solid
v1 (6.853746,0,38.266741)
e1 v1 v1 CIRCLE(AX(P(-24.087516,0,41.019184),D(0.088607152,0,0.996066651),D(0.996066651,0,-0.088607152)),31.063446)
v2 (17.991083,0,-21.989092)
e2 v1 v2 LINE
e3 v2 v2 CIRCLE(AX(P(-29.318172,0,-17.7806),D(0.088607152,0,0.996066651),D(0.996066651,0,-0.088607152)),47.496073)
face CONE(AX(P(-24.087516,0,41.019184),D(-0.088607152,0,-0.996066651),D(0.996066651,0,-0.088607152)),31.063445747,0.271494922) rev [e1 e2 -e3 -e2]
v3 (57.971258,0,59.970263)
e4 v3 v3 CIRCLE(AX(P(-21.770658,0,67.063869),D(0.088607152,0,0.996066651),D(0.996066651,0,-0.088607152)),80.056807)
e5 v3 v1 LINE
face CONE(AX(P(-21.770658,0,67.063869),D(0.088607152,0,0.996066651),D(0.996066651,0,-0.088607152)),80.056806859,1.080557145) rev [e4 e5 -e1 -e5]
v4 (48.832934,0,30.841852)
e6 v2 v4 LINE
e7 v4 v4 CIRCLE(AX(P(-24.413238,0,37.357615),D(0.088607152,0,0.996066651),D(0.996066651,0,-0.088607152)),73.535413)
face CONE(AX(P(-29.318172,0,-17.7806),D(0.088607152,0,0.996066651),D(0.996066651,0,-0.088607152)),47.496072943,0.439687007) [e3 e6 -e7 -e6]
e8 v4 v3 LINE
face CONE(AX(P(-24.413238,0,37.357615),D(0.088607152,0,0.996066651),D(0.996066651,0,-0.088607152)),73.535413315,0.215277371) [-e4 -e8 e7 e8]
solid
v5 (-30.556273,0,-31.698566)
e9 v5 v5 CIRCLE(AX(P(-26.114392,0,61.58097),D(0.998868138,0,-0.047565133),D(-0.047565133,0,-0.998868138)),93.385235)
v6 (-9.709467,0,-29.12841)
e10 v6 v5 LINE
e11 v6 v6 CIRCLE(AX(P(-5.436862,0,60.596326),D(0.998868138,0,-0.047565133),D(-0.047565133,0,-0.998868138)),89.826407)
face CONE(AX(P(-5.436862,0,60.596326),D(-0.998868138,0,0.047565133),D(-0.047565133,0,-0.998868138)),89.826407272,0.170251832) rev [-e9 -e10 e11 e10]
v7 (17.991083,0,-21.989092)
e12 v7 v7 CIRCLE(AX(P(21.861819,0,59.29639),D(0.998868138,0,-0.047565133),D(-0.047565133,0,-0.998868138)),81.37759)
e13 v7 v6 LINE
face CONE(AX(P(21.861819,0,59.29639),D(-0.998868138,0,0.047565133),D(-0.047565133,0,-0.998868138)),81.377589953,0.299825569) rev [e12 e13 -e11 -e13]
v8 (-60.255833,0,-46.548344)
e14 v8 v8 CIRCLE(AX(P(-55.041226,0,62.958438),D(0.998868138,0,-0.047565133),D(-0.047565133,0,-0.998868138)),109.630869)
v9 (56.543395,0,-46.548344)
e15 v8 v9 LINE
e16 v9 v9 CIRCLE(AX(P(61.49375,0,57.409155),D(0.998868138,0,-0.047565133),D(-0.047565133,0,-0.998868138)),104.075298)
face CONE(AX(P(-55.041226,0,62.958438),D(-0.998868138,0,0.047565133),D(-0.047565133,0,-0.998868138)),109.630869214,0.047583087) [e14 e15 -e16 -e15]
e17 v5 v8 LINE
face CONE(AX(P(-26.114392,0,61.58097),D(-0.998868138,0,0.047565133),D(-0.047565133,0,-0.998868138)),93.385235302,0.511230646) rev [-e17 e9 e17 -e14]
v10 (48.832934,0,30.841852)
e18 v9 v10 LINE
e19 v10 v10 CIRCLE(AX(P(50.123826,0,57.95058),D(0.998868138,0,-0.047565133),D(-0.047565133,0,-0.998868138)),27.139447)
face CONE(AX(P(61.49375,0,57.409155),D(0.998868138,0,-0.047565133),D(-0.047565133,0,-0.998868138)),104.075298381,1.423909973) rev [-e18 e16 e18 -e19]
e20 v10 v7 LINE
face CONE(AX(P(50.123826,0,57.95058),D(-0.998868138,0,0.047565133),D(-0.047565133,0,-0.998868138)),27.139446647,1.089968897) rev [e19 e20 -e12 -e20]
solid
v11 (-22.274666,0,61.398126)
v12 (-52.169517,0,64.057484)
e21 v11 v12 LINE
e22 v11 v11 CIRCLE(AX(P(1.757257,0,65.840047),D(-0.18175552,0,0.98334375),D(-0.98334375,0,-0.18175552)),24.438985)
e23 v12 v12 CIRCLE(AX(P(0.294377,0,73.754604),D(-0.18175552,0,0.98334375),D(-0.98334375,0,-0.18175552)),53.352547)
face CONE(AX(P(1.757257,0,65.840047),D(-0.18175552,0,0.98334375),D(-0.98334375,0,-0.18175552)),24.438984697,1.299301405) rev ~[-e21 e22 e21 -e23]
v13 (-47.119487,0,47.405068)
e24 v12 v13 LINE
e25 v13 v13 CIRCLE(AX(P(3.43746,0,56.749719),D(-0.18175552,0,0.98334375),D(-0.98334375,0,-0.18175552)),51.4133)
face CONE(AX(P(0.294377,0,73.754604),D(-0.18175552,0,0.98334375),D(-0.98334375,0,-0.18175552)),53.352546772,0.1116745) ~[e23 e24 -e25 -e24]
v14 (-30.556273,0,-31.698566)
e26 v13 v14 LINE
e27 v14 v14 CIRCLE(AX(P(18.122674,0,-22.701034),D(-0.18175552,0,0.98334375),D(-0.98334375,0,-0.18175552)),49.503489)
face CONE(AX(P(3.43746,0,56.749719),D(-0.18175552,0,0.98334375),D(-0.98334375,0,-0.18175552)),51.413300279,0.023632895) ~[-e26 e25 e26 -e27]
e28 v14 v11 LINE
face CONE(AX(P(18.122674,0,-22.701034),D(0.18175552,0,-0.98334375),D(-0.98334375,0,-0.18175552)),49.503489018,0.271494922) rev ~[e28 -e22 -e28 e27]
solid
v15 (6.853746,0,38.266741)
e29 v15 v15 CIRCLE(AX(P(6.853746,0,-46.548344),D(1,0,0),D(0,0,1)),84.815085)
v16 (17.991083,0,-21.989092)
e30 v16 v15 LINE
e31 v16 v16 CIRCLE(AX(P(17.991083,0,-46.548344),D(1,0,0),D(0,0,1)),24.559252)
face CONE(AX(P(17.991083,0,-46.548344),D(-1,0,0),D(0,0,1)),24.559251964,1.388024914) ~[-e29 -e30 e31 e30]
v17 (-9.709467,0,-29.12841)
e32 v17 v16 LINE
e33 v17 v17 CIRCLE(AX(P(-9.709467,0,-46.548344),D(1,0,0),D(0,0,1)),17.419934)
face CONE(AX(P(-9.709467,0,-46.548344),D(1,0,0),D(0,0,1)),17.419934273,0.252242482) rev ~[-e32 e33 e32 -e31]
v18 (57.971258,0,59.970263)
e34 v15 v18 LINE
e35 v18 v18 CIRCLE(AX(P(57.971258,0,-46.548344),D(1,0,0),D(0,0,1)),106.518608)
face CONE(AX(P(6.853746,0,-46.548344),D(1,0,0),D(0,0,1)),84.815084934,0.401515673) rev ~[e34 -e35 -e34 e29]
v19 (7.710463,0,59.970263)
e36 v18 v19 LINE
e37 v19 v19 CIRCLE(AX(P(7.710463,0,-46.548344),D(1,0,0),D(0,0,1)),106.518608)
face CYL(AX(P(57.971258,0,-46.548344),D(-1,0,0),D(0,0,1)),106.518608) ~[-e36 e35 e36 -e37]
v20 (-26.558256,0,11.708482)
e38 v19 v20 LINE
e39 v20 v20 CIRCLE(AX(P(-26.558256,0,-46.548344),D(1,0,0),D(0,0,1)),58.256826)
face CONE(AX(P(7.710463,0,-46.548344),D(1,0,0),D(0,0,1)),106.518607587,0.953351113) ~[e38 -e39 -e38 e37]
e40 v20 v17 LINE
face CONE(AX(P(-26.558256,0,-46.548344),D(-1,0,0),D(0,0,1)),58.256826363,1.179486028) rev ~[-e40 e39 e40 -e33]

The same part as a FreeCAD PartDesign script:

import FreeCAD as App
import Part
import Sketcher
from FreeCAD import Vector

doc = App.newDocument("Part")
body = doc.addObject("PartDesign::Body", "Body")

sketch1 = doc.addObject("Sketcher::SketchObject", "Sketch")
body.addObject(sketch1)
sketch1.AttachmentSupport = (doc.XZ_Plane, [""])
sketch1.MapMode = "FlatFace"
sketch1.addGeometry(Part.LineSegment(Vector(-52, 64, 0), Vector(-47, 47, 0)), False)
sketch1.addGeometry(Part.LineSegment(Vector(-47, 47, 0), Vector(-31, -32, 0)), False)
sketch1.addGeometry(Part.LineSegment(Vector(-31, -32, 0), Vector(-22, 61, 0)), False)
sketch1.addGeometry(Part.LineSegment(Vector(-22, 61, 0), Vector(-52, 64, 0)), False)
sketch1.addGeometry(Part.LineSegment(Vector(18, -23, 0), Vector(0, 74, 0)), True)
sketch1.addConstraint(Sketcher.Constraint("Coincident", 0, 2, 1, 1))
sketch1.addConstraint(Sketcher.Constraint("Coincident", 1, 2, 2, 1))
sketch1.addConstraint(Sketcher.Constraint("Coincident", 2, 2, 3, 1))
sketch1.addConstraint(Sketcher.Constraint("Coincident", 3, 2, 0, 1))
sketch1.addConstraint(Sketcher.Constraint("Perpendicular", 2, 3))
sketch1.addConstraint(Sketcher.Constraint("DistanceY", 4, 1, 0, 2, 70.106101))
sketch1.addConstraint(Sketcher.Constraint("Distance", 2, 93.46432))
sketch1.addConstraint(Sketcher.Constraint("Distance", 4, 98.08944))
sketch1.addConstraint(Sketcher.Constraint("DistanceX", 0, 2, 2, 2, 24.844822))
sketch1.addConstraint(Sketcher.Constraint("DistanceY", 0, 2, 2, 2, 13.993058))
sketch1.addConstraint(Sketcher.Constraint("DistanceX", 3, 2, 0, 2, 5.05003))
sketch1.addConstraint(Sketcher.Constraint("DistanceY", 1, 2, 3, 2, 95.75605))
sketch1.addConstraint(Sketcher.Constraint("DistanceX", 2, 2, 4, 1, 40.397339))
sketch1.addConstraint(Sketcher.Constraint("DistanceY", 3, 2, 4, 2, 9.69712))
sketch1.addConstraint(Sketcher.Constraint("DistanceX", 0, 2, -1, 1, 47.119487))
sketch1.addConstraint(Sketcher.Constraint("DistanceY", -1, 1, 0, 2, 47.405068))
revolution = doc.addObject("PartDesign::Revolution", "Revolution")
body.addObject(revolution)
revolution.Profile = sketch1
revolution.ReferenceAxis = (sketch1, ["Axis0"])
revolution.Angle = 360
body2 = doc.addObject("PartDesign::Body", "Body001")

sketch2 = doc.addObject("Sketcher::SketchObject", "Sketch001")
body2.addObject(sketch2)
sketch2.AttachmentSupport = (doc.getObject("XZ_Plane001"), [""])
sketch2.MapMode = "FlatFace"
sketch2.addGeometry(Part.LineSegment(Vector(-27, 12, 0), Vector(-10, -29, 0)), False)
sketch2.addGeometry(Part.LineSegment(Vector(-10, -29, 0), Vector(18, -22, 0)), False)
sketch2.addGeometry(Part.LineSegment(Vector(18, -22, 0), Vector(7, 38, 0)), False)
sketch2.addGeometry(Part.LineSegment(Vector(7, 38, 0), Vector(58, 60, 0)), False)
sketch2.addGeometry(Part.LineSegment(Vector(58, 60, 0), Vector(8, 60, 0)), False)
sketch2.addGeometry(Part.LineSegment(Vector(8, 60, 0), Vector(-27, 12, 0)), False)
sketch2.addGeometry(Part.LineSegment(Vector(-27, -47, 0), Vector(58, -47, 0)), True)
sketch2.addConstraint(Sketcher.Constraint("Coincident", 0, 2, 1, 1))
sketch2.addConstraint(Sketcher.Constraint("Coincident", 1, 2, 2, 1))
sketch2.addConstraint(Sketcher.Constraint("Coincident", 2, 2, 3, 1))
sketch2.addConstraint(Sketcher.Constraint("Coincident", 3, 2, 4, 1))
sketch2.addConstraint(Sketcher.Constraint("Coincident", 4, 2, 5, 1))
sketch2.addConstraint(Sketcher.Constraint("Coincident", 5, 2, 0, 1))
sketch2.addConstraint(Sketcher.Constraint("Horizontal", 4))
sketch2.addConstraint(Sketcher.Constraint("Horizontal", 6))
sketch2.addConstraint(Sketcher.Constraint("Vertical", 5, 2, 6, 1))
sketch2.addConstraint(Sketcher.Constraint("Vertical", 3, 2, 6, 2))
sketch2.addConstraint(Sketcher.Constraint("Distance", 2, 61.276469))
sketch2.addConstraint(Sketcher.Constraint("Distance", 3, 55.53416))
sketch2.addConstraint(Sketcher.Constraint("DistanceX", 4, 2, 4, 1, 50.260794))
sketch2.addConstraint(Sketcher.Constraint("DistanceX", 6, 1, 6, 2, 84.529513))
sketch2.addConstraint(Sketcher.Constraint("DistanceY", 0, 2, -1, 1, 29.12841))
sketch2.addConstraint(Sketcher.Constraint("DistanceY", -1, 1, 2, 2, 38.266741))
sketch2.addConstraint(Sketcher.Constraint("DistanceX", 0, 2, 1, 2, 27.70055))
sketch2.addConstraint(Sketcher.Constraint("DistanceX", 2, 2, 3, 2, 51.117511))
sketch2.addConstraint(Sketcher.Constraint("DistanceX", 4, 2, 1, 2, 10.280619))
sketch2.addConstraint(Sketcher.Constraint("DistanceY", 5, 2, 2, 2, 26.558259))
sketch2.addConstraint(Sketcher.Constraint("DistanceY", 6, 1, 1, 2, 24.559252))
sketch2.addConstraint(Sketcher.Constraint("DistanceX", 0, 2, -1, 1, 9.709467))
revolution2 = doc.addObject("PartDesign::Revolution", "Revolution001")
body2.addObject(revolution2)
revolution2.Profile = sketch2
revolution2.ReferenceAxis = (sketch2, ["Axis0"])
revolution2.Angle = 360
body3 = doc.addObject("PartDesign::Body", "Body002")

sketch3 = doc.addObject("Sketcher::SketchObject", "Sketch002")
body3.addObject(sketch3)
sketch3.AttachmentSupport = (doc.getObject("XZ_Plane002"), [""])
sketch3.MapMode = "FlatFace"
sketch3.addGeometry(Part.LineSegment(Vector(-31, -32, 0), Vector(-60, -47, 0)), False)
sketch3.addGeometry(Part.LineSegment(Vector(-60, -47, 0), Vector(57, -47, 0)), False)
sketch3.addGeometry(Part.LineSegment(Vector(57, -47, 0), Vector(49, 31, 0)), False)
sketch3.addGeometry(Part.LineSegment(Vector(49, 31, 0), Vector(18, -22, 0)), False)
sketch3.addGeometry(Part.LineSegment(Vector(18, -22, 0), Vector(-10, -29, 0)), False)
sketch3.addGeometry(Part.LineSegment(Vector(-10, -29, 0), Vector(-31, -32, 0)), False)
sketch3.addGeometry(Part.LineSegment(Vector(-55, 63, 0), Vector(61, 57, 0)), True)
sketch3.addConstraint(Sketcher.Constraint("Coincident", 0, 2, 1, 1))
sketch3.addConstraint(Sketcher.Constraint("Coincident", 1, 2, 2, 1))
sketch3.addConstraint(Sketcher.Constraint("Coincident", 2, 2, 3, 1))
sketch3.addConstraint(Sketcher.Constraint("Coincident", 3, 2, 4, 1))
sketch3.addConstraint(Sketcher.Constraint("Coincident", 4, 2, 5, 1))
sketch3.addConstraint(Sketcher.Constraint("Coincident", 5, 2, 0, 1))
sketch3.addConstraint(Sketcher.Constraint("Horizontal", 1))
sketch3.addConstraint(Sketcher.Constraint("DistanceX", 4, 2, 2, 2, 58.542402))
sketch3.addConstraint(Sketcher.Constraint("DistanceY", 1, 2, 6, 2, 103.9575))
sketch3.addConstraint(Sketcher.Constraint("DistanceX", 1, 1, 1, 2, 116.799228))
sketch3.addConstraint(Sketcher.Constraint("DistanceY", -1, 1, 2, 2, 30.841852))
sketch3.addConstraint(Sketcher.Constraint("DistanceY", 4, 2, -1, 1, 29.12841))
sketch3.addConstraint(Sketcher.Constraint("DistanceY", -1, 1, 6, 1, 62.958438))
sketch3.addConstraint(Sketcher.Constraint("DistanceX", -1, 1, 6, 2, 61.49375))
sketch3.addConstraint(Sketcher.Constraint("DistanceX", 2, 2, 1, 2, 7.710461))
sketch3.addConstraint(Sketcher.Constraint("DistanceY", 1, 2, 3, 2, 24.559252))
sketch3.addConstraint(Sketcher.Constraint("DistanceX", 3, 2, 2, 2, 30.841852))
sketch3.addConstraint(Sketcher.Constraint("DistanceX", 0, 2, 5, 2, 29.69956))
sketch3.addConstraint(Sketcher.Constraint("DistanceY", 0, 2, 5, 2, 14.849778))
sketch3.addConstraint(Sketcher.Constraint("DistanceX", 6, 1, 4, 2, 45.331759))
sketch3.addConstraint(Sketcher.Constraint("DistanceY", 3, 2, 6, 1, 84.94753))
sketch3.addConstraint(Sketcher.Constraint("Distance", 6, 116.667027))
revolution3 = doc.addObject("PartDesign::Revolution", "Revolution002")
body3.addObject(revolution3)
revolution3.Profile = sketch3
revolution3.ReferenceAxis = (sketch3, ["Axis0"])
revolution3.Angle = 360
body4 = doc.addObject("PartDesign::Body", "Body003")

sketch4 = doc.addObject("Sketcher::SketchObject", "Sketch003")
body4.addObject(sketch4)
sketch4.AttachmentSupport = (doc.getObject("XZ_Plane003"), [""])
sketch4.MapMode = "FlatFace"
sketch4.addGeometry(Part.LineSegment(Vector(18, -22, 0), Vector(49, 31, 0)), False)
sketch4.addGeometry(Part.LineSegment(Vector(49, 31, 0), Vector(58, 60, 0)), False)
sketch4.addGeometry(Part.LineSegment(Vector(58, 60, 0), Vector(7, 38, 0)), False)
sketch4.addGeometry(Part.LineSegment(Vector(7, 38, 0), Vector(18, -22, 0)), False)
sketch4.addGeometry(Part.LineSegment(Vector(-29, -18, 0), Vector(-22, 67, 0)), True)
sketch4.addConstraint(Sketcher.Constraint("Coincident", 0, 2, 1, 1))
sketch4.addConstraint(Sketcher.Constraint("Coincident", 1, 2, 2, 1))
sketch4.addConstraint(Sketcher.Constraint("Coincident", 2, 2, 3, 1))
sketch4.addConstraint(Sketcher.Constraint("Coincident", 3, 2, 0, 1))
sketch4.addConstraint(Sketcher.Constraint("DistanceY", 4, 1, -1, 1, 17.7806))
sketch4.addConstraint(Sketcher.Constraint("Distance", 1, 30.528238))
sketch4.addConstraint(Sketcher.Constraint("Distance", 2, 55.53416))
sketch4.addConstraint(Sketcher.Constraint("Distance", 3, 61.276469))
sketch4.addConstraint(Sketcher.Constraint("Distance", 4, 85.17951))
sketch4.addConstraint(Sketcher.Constraint("DistanceY", -1, 1, 0, 2, 30.841852))
sketch4.addConstraint(Sketcher.Constraint("DistanceY", -1, 1, 2, 2, 38.266741))
sketch4.addConstraint(Sketcher.Constraint("DistanceX", 4, 1, -1, 1, 29.318172))
sketch4.addConstraint(Sketcher.Constraint("DistanceY", -1, 1, 4, 2, 67.063869))
sketch4.addConstraint(Sketcher.Constraint("DistanceY", 0, 2, 1, 2, 29.128412))
sketch4.addConstraint(Sketcher.Constraint("DistanceX", 3, 2, 0, 2, 30.841852))
sketch4.addConstraint(Sketcher.Constraint("DistanceX", 4, 1, 1, 2, 87.289429))
revolution4 = doc.addObject("PartDesign::Revolution", "Revolution003")
body4.addObject(revolution4)
revolution4.Profile = sketch4
revolution4.ReferenceAxis = (sketch4, ["Axis0"])
revolution4.Angle = 360

doc.recompute()
